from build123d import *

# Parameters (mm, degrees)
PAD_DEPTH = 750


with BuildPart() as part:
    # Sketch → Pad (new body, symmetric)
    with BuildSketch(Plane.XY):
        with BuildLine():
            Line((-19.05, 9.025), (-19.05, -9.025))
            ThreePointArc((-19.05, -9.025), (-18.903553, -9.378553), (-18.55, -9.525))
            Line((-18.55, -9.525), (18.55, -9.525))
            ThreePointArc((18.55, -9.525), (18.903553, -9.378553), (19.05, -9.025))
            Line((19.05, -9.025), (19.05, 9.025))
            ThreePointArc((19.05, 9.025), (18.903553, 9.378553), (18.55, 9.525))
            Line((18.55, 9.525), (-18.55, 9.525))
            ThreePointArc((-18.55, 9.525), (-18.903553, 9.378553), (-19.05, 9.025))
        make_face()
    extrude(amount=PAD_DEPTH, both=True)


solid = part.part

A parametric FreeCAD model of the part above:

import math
import FreeCAD as App
import Part
import Sketcher
from FreeCAD import Vector
Q = App.Units.Quantity

doc = App.newDocument("Part")
body = doc.addObject("PartDesign::Body", "Body")

sketch1 = doc.addObject("Sketcher::SketchObject", "Sketch")
body.addObject(sketch1)
sketch1.AttachmentSupport = (doc.XY_Plane, [""])
sketch1.MapMode = "FlatFace"
sketch1.addGeometry(Part.LineSegment(Vector(-19.05, 9.025, 0), Vector(-19.05, -9.025, 0)), False)
sketch1.addGeometry(Part.ArcOfCircle(Part.Circle(Vector(-18.549999, -9.024999, 0), Vector(0, 0, 1), 0.500001), math.radians(-179.999847), math.radians(-90.000153)), False)
sketch1.addGeometry(Part.LineSegment(Vector(-18.55, -9.525, 0), Vector(18.55, -9.525, 0)), False)
sketch1.addGeometry(Part.ArcOfCircle(Part.Circle(Vector(18.549999, -9.024999, 0), Vector(0, 0, 1), 0.500001), math.radians(-89.999847), math.radians(-0.000153)), False)
sketch1.addGeometry(Part.LineSegment(Vector(19.05, -9.025, 0), Vector(19.05, 9.025, 0)), False)
sketch1.addGeometry(Part.ArcOfCircle(Part.Circle(Vector(18.549999, 9.024999, 0), Vector(0, 0, 1), 0.500001), math.radians(0.000153), math.radians(89.999847)), False)
sketch1.addGeometry(Part.LineSegment(Vector(18.55, 9.525, 0), Vector(-18.55, 9.525, 0)), False)
sketch1.addGeometry(Part.ArcOfCircle(Part.Circle(Vector(-18.549999, 9.024999, 0), Vector(0, 0, 1), 0.500001), math.radians(90.000153), math.radians(179.999847)), False)
sketch1.addConstraint(Sketcher.Constraint("Coincident", 0, 2, 1, 1))
sketch1.addConstraint(Sketcher.Constraint("Coincident", 1, 2, 2, 1))
sketch1.addConstraint(Sketcher.Constraint("Coincident", 2, 2, 3, 1))
sketch1.addConstraint(Sketcher.Constraint("Coincident", 3, 2, 4, 1))
sketch1.addConstraint(Sketcher.Constraint("Coincident", 4, 2, 5, 1))
sketch1.addConstraint(Sketcher.Constraint("Coincident", 5, 2, 6, 1))
sketch1.addConstraint(Sketcher.Constraint("Coincident", 6, 2, 7, 1))
sketch1.addConstraint(Sketcher.Constraint("Coincident", 7, 2, 0, 1))
sketch1.addConstraint(Sketcher.Constraint("Vertical", 0))
sketch1.addConstraint(Sketcher.Constraint("Horizontal", 2))
sketch1.addConstraint(Sketcher.Constraint("Vertical", 4))
sketch1.addConstraint(Sketcher.Constraint("Horizontal", 6))
sketch1.addConstraint(Sketcher.Constraint("Equal", 1, 3))
sketch1.addConstraint(Sketcher.Constraint("Equal", 3, 5))
sketch1.addConstraint(Sketcher.Constraint("Equal", 5, 7))
sketch1.addConstraint(Sketcher.Constraint("Symmetric", 1, 3, 5, 3, -1, 1))
sketch1.addConstraint(Sketcher.Constraint("Horizontal", 3, 3, 0, 2))
sketch1.addConstraint(Sketcher.Constraint("Horizontal", 0, 2, 3, 2))
sketch1.addConstraint(Sketcher.Constraint("Horizontal", 7, 3, 4, 2))
sketch1.addConstraint(Sketcher.Constraint("Horizontal", 4, 2, 7, 2))
sketch1.addConstraint(Sketcher.Constraint("Vertical", 7, 3, 1, 2))
sketch1.addConstraint(Sketcher.Constraint("Vertical", 5, 3, 2, 2))
sketch1.addConstraint(Sketcher.Constraint("Vertical", 2, 2, 5, 2))
sketch1.addConstraint(Sketcher.Constraint("Vertical", 1, 2, 6, 2))
sketch1.addConstraint(Sketcher.Constraint("Radius", 1, Q("0.500001 mm")))
sketch1.addConstraint(Sketcher.Constraint("DistanceX", 2, 1, 2, 2, Q("37.1 mm")))
sketch1.addConstraint(Sketcher.Constraint("DistanceY", 0, 2, 0, 1, Q("18.05 mm")))
pad1 = doc.addObject("PartDesign::Pad", "Pad")
body.addObject(pad1)
pad1.Profile = sketch1
pad1.Length = 1500
pad1.Midplane = True

doc.recompute()
